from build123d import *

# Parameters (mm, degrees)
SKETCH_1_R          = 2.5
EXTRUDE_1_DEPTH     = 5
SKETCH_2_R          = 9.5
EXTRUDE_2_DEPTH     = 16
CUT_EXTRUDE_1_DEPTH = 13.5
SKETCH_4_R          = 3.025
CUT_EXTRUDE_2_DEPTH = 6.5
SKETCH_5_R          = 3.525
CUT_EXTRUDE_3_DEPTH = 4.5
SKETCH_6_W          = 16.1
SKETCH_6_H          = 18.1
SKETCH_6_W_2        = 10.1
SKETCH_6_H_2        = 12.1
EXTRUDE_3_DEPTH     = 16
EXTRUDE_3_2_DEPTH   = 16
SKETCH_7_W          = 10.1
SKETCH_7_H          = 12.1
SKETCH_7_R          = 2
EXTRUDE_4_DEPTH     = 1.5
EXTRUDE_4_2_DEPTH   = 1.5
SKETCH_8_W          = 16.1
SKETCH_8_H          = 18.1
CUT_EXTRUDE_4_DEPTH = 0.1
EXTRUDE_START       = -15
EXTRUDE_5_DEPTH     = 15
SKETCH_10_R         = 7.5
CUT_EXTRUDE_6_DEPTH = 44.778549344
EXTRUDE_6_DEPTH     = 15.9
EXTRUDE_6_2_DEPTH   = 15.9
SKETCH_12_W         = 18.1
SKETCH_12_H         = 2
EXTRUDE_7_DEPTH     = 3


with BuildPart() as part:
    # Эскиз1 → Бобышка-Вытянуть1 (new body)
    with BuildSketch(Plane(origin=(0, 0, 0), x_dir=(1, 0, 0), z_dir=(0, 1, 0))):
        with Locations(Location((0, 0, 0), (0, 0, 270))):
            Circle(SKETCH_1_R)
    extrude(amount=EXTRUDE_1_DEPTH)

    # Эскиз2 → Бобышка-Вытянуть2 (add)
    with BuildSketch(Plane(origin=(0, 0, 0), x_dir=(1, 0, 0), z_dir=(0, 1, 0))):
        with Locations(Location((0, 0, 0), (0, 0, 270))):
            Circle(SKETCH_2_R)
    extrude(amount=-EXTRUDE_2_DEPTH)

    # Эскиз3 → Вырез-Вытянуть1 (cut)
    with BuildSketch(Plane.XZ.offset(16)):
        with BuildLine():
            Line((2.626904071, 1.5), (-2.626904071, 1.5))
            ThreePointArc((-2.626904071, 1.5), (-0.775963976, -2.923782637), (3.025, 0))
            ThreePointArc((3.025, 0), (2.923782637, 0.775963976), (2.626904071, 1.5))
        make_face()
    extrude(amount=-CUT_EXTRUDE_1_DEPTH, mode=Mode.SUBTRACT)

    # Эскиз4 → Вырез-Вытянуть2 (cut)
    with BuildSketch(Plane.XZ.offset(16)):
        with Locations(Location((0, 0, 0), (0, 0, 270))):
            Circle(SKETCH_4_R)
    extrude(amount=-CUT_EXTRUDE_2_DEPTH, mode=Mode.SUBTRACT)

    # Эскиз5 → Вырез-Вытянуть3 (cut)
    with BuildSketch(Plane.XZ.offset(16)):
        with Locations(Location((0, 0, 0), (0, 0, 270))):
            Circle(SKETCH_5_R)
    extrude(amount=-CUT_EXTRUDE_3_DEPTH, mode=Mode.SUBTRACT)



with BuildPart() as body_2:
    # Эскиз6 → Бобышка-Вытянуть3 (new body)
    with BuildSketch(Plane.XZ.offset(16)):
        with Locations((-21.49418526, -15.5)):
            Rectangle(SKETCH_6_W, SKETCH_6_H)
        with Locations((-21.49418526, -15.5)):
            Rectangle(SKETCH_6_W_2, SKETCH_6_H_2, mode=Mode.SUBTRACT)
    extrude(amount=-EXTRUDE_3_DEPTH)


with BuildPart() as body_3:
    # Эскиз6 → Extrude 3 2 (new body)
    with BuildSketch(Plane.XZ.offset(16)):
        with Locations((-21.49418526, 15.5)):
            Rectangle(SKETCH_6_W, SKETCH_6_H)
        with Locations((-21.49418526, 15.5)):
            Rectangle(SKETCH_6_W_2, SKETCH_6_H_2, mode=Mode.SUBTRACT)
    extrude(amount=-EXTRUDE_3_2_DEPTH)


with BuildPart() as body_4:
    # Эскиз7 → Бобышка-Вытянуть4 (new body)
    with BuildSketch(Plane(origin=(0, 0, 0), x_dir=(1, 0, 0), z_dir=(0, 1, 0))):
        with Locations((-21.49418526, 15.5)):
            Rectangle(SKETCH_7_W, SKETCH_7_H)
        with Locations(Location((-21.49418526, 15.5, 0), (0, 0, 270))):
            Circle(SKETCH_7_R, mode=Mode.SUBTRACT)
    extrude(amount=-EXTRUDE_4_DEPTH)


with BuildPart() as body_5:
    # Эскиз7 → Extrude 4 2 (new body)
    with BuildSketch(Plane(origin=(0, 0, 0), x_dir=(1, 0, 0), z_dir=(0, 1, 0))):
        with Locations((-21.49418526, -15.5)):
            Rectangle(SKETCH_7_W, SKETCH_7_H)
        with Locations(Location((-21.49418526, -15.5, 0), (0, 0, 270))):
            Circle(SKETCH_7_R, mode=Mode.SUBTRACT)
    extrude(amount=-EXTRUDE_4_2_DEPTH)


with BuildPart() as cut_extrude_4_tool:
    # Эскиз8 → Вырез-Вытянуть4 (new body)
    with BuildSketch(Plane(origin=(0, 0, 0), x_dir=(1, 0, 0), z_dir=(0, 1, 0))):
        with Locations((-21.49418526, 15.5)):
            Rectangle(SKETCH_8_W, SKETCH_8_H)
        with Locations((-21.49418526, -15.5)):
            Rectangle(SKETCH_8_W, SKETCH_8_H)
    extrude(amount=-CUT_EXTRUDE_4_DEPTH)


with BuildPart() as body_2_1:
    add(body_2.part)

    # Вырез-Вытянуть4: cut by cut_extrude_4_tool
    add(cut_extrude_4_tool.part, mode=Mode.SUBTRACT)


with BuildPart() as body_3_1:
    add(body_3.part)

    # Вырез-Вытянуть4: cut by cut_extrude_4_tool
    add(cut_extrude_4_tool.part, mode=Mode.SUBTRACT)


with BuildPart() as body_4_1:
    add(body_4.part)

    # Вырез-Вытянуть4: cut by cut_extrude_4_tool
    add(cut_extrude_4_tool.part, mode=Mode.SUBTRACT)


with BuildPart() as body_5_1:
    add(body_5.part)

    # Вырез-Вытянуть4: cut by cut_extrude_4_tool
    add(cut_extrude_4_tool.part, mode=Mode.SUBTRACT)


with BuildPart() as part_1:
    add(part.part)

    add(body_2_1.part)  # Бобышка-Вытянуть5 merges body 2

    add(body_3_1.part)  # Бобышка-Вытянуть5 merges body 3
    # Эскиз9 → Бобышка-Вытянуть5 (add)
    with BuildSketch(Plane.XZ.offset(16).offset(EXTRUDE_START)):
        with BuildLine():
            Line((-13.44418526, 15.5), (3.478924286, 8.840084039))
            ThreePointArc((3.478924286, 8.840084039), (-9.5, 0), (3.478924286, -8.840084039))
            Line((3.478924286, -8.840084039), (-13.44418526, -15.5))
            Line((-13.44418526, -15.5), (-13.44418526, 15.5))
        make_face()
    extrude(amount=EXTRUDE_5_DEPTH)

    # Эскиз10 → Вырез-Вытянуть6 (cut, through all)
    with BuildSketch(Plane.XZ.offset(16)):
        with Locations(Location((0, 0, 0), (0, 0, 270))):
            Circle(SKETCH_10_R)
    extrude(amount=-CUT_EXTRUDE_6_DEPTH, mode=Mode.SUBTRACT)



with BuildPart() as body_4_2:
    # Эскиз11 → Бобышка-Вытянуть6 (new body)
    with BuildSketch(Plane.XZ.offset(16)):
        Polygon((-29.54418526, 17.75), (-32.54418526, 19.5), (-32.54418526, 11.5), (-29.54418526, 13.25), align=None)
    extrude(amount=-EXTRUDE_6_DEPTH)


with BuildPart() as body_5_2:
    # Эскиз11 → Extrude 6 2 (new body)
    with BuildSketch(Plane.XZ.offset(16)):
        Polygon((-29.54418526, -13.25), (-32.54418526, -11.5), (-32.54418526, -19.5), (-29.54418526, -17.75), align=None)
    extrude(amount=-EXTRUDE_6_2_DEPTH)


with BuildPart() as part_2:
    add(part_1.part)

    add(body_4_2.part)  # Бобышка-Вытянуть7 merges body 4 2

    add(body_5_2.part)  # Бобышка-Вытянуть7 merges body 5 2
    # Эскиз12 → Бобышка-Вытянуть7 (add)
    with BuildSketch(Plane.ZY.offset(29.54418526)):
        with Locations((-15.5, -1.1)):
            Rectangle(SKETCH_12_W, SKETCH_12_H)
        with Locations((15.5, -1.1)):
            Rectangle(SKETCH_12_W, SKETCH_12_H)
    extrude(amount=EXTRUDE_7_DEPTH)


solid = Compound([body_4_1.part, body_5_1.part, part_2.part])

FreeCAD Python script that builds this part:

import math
import FreeCAD as App
import Part
import Sketcher

V = App.Vector
Q = App.Units.Quantity

doc = App.newDocument("Part")
body = doc.addObject("PartDesign::Body", "Body")

# Sketch on XZ plane
sketch1 = body.newObject("Sketcher::SketchObject", "Sketch")
sketch1.AttachmentSupport = (doc.getObject("XZ_Plane"), [""])
sketch1.MapMode = "FlatFace"
sketch1.addGeometry(Part.Circle(V(0, 0, 0), V(0, 0, 1), 2.5), False)
sketch1.addConstraint([
    Sketcher.Constraint("Coincident", 0, 3, -1, 1),
    Sketcher.Constraint("Diameter", 0, Q("5 mm")),
])
pad1 = body.newObject("PartDesign::Pad", "Pad")
pad1.Profile = sketch1
pad1.Length = 5
pad1.Reversed = True

# Sketch on XZ plane
sketch2 = body.newObject("Sketcher::SketchObject", "Sketch001")
sketch2.AttachmentSupport = (doc.getObject("XZ_Plane"), [""])
sketch2.MapMode = "FlatFace"
sketch2.addGeometry(Part.Circle(V(0, 0, 0), V(0, 0, 1), 10), False)
sketch2.addConstraint([
    Sketcher.Constraint("Coincident", 0, 3, -1, 1),
    Sketcher.Constraint("Diameter", 0, Q("19 mm")),
])
pad2 = body.newObject("PartDesign::Pad", "Pad001")
pad2.Profile = sketch2
pad2.Length = 16

# Sketch on XZ plane
sketch3 = body.newObject("Sketcher::SketchObject", "Sketch002")
sketch3.AttachmentSupport = (doc.getObject("XZ_Plane"), [""])
sketch3.MapMode = "FlatFace"
sketch3.AttachmentOffset = App.Placement(V(0, 0, 16), App.Rotation())
sketch3.addGeometry([
    Part.LineSegment(V(2.6, 1.5, 0), V(-2.6, 1.5, 0)),
    Part.ArcOfCircle(Part.Circle(V(0, 0, 0), V(0, 0, 1), 3), math.radians(150), math.radians(360)),
    Part.ArcOfCircle(Part.Circle(V(0, 0, 0), V(0, 0, 1), 3), math.radians(0), math.radians(30)),
], False)
sketch3.addConstraint([
    Sketcher.Constraint("Coincident", 0, 2, 1, 1),
    Sketcher.Constraint("Tangent", 1, 2, 2, 1),
    Sketcher.Constraint("Coincident", 2, 2, 0, 1),
    Sketcher.Constraint("Horizontal", 0),
    Sketcher.Constraint("Coincident", 1, 3, -1, 1),
    Sketcher.Constraint("Equal", 1, 2),
    Sketcher.Constraint("PointOnObject", 1, 2, -1),
    Sketcher.Constraint("Radius", 1, Q("3.025 mm")),
    Sketcher.Constraint("DistanceY", -1, 1, 0, 2, Q("1.5 mm")),
])
pocket1 = body.newObject("PartDesign::Pocket", "Pocket")
pocket1.Profile = sketch3
pocket1.Length = 13.5

# Sketch on XZ plane
sketch4 = body.newObject("Sketcher::SketchObject", "Sketch003")
sketch4.AttachmentSupport = (doc.getObject("XZ_Plane"), [""])
sketch4.MapMode = "FlatFace"
sketch4.AttachmentOffset = App.Placement(V(0, 0, 16), App.Rotation())
sketch4.addGeometry(Part.Circle(V(0, 0, 0), V(0, 0, 1), 3), False)
sketch4.addConstraint([
    Sketcher.Constraint("Coincident", 0, 3, -1, 1),
    Sketcher.Constraint("Diameter", 0, Q("6.05 mm")),
])
pocket2 = body.newObject("PartDesign::Pocket", "Pocket001")
pocket2.Profile = sketch4
pocket2.Length = 6.5

# Sketch on XZ plane
sketch5 = body.newObject("Sketcher::SketchObject", "Sketch004")
sketch5.AttachmentSupport = (doc.getObject("XZ_Plane"), [""])
sketch5.MapMode = "FlatFace"
sketch5.AttachmentOffset = App.Placement(V(0, 0, 16), App.Rotation())
sketch5.addGeometry(Part.Circle(V(0, 0, 0), V(0, 0, 1), 3.5), False)
sketch5.addConstraint([
    Sketcher.Constraint("Coincident", 0, 3, -1, 1),
    Sketcher.Constraint("Diameter", 0, Q("7.05 mm")),
])
pocket3 = body.newObject("PartDesign::Pocket", "Pocket002")
pocket3.Profile = sketch5
pocket3.Length = 4.5
body2 = doc.addObject("PartDesign::Body", "Body001")

# Sketch on XZ plane
sketch6 = body2.newObject("Sketcher::SketchObject", "Sketch005")
sketch6.AttachmentSupport = (doc.getObject("XZ_Plane001"), [""])
sketch6.MapMode = "FlatFace"
sketch6.AttachmentOffset = App.Placement(V(0, 0, 16), App.Rotation())
sketch6.addGeometry([
    Part.LineSegment(V(-30, -6, 0), V(-30, -25, 0)),  # 0
    Part.LineSegment(V(-30, -25, 0), V(-13, -25, 0)),  # 1
    Part.LineSegment(V(-13, -25, 0), V(-13, -6, 0)),  # 2
    Part.LineSegment(V(-13, -6, 0), V(-30, -6, 0)),  # 3
    Part.LineSegment(V(-16, -22, 0), V(-27, -22, 0)),  # 4
    Part.LineSegment(V(-27, -22, 0), V(-27, -9, 0)),  # 5
    Part.LineSegment(V(-27, -9, 0), V(-16, -9, 0)),  # 6
    Part.LineSegment(V(-16, -9, 0), V(-16, -22, 0)),  # 7
], False)
sketch6.addConstraint([
    Sketcher.Constraint("Coincident", 0, 2, 1, 1),
    Sketcher.Constraint("Coincident", 1, 2, 2, 1),
    Sketcher.Constraint("Coincident", 2, 2, 3, 1),
    Sketcher.Constraint("Coincident", 3, 2, 0, 1),
    Sketcher.Constraint("Coincident", 4, 2, 5, 1),
    Sketcher.Constraint("Coincident", 5, 2, 6, 1),
    Sketcher.Constraint("Coincident", 6, 2, 7, 1),
    Sketcher.Constraint("Coincident", 7, 2, 4, 1),
    Sketcher.Constraint("Vertical", 0),
    Sketcher.Constraint("Horizontal", 1),
    Sketcher.Constraint("Vertical", 2),
    Sketcher.Constraint("Horizontal", 3),
    Sketcher.Constraint("Horizontal", 4),
    Sketcher.Constraint("Vertical", 5),
    Sketcher.Constraint("Horizontal", 6),
    Sketcher.Constraint("Vertical", 7),
    Sketcher.Constraint("DistanceX", 1, 1, 1, 2, Q("16.1 mm")),
    Sketcher.Constraint("DistanceX", 4, 2, 4, 1, Q("10.1 mm")),
    Sketcher.Constraint("DistanceY", 0, 2, 0, 1, Q("18.1 mm")),
    Sketcher.Constraint("DistanceY", 5, 1, 5, 2, Q("12.1 mm")),
    Sketcher.Constraint("DistanceX", 0, 2, 4, 2, Q("3 mm")),
    Sketcher.Constraint("DistanceY", 0, 2, 4, 2, Q("3 mm")),
    Sketcher.Constraint("DistanceY", 0, 2, -1, 1, Q("24.55 mm")),
    Sketcher.Constraint("DistanceX", 0, 2, -1, 1, Q("29.544185 mm")),
])
pad3 = body2.newObject("PartDesign::Pad", "Pad002")
pad3.Profile = sketch6
pad3.Length = 16
pad3.Reversed = True
body3 = doc.addObject("PartDesign::Body", "Body002")

# Sketch on XZ plane
sketch7 = body3.newObject("Sketcher::SketchObject", "Sketch006")
sketch7.AttachmentSupport = (doc.getObject("XZ_Plane002"), [""])
sketch7.MapMode = "FlatFace"
sketch7.AttachmentOffset = App.Placement(V(0, 0, 16), App.Rotation())
sketch7.addGeometry([
    Part.LineSegment(V(-30, 25, 0), V(-30, 6, 0)),  # 0
    Part.LineSegment(V(-30, 6, 0), V(-13, 6, 0)),  # 1
    Part.LineSegment(V(-13, 6, 0), V(-13, 25, 0)),  # 2
    Part.LineSegment(V(-13, 25, 0), V(-30, 25, 0)),  # 3
    Part.LineSegment(V(-16, 9, 0), V(-27, 9, 0)),  # 4
    Part.LineSegment(V(-27, 9, 0), V(-27, 22, 0)),  # 5
    Part.LineSegment(V(-27, 22, 0), V(-16, 22, 0)),  # 6
    Part.LineSegment(V(-16, 22, 0), V(-16, 9, 0)),  # 7
], False)
sketch7.addConstraint([
    Sketcher.Constraint("Coincident", 0, 2, 1, 1),
    Sketcher.Constraint("Coincident", 1, 2, 2, 1),
    Sketcher.Constraint("Coincident", 2, 2, 3, 1),
    Sketcher.Constraint("Coincident", 3, 2, 0, 1),
    Sketcher.Constraint("Coincident", 4, 2, 5, 1),
    Sketcher.Constraint("Coincident", 5, 2, 6, 1),
    Sketcher.Constraint("Coincident", 6, 2, 7, 1),
    Sketcher.Constraint("Coincident", 7, 2, 4, 1),
    Sketcher.Constraint("Vertical", 0),
    Sketcher.Constraint("Horizontal", 1),
    Sketcher.Constraint("Vertical", 2),
    Sketcher.Constraint("Horizontal", 3),
    Sketcher.Constraint("Horizontal", 4),
    Sketcher.Constraint("Vertical", 5),
    Sketcher.Constraint("Horizontal", 6),
    Sketcher.Constraint("Vertical", 7),
    Sketcher.Constraint("DistanceX", 1, 1, 1, 2, Q("16.1 mm")),
    Sketcher.Constraint("DistanceX", 4, 2, 4, 1, Q("10.1 mm")),
    Sketcher.Constraint("DistanceY", 0, 2, 0, 1, Q("18.1 mm")),
    Sketcher.Constraint("DistanceY", 5, 1, 5, 2, Q("12.1 mm")),
    Sketcher.Constraint("DistanceX", 0, 2, 4, 2, Q("3 mm")),
    Sketcher.Constraint("DistanceY", 0, 2, 4, 2, Q("3 mm")),
    Sketcher.Constraint("DistanceY", -1, 1, 0, 2, Q("6.45 mm")),
    Sketcher.Constraint("DistanceX", 0, 2, -1, 1, Q("29.544185 mm")),
])
pad4 = body3.newObject("PartDesign::Pad", "Pad003")
pad4.Profile = sketch7
pad4.Length = 16
pad4.Reversed = True
body4 = doc.addObject("PartDesign::Body", "Body003")

# Sketch on XZ plane
sketch8 = body4.newObject("Sketcher::SketchObject", "Sketch007")
sketch8.AttachmentSupport = (doc.getObject("XZ_Plane003"), [""])
sketch8.MapMode = "FlatFace"
sketch8.addGeometry([
    Part.LineSegment(V(-26.5, -21.6, 0), V(-26.5, -9.4, 0)),  # 0
    Part.LineSegment(V(-26.5, -9.4, 0), V(-16.4, -9.4, 0)),  # 1
    Part.LineSegment(V(-16.4, -9.4, 0), V(-16.4, -21.6, 0)),  # 2
    Part.LineSegment(V(-16.4, -21.6, 0), V(-26.5, -21.6, 0)),  # 3
    Part.Circle(V(-21.5, -15.5, 0), V(0, 0, 1), 2),  # 4
], False)
sketch8.addConstraint([
    Sketcher.Constraint("Coincident", 0, 2, 1, 1),
    Sketcher.Constraint("Coincident", 1, 2, 2, 1),
    Sketcher.Constraint("Coincident", 2, 2, 3, 1),
    Sketcher.Constraint("Coincident", 3, 2, 0, 1),
    Sketcher.Constraint("Vertical", 0),
    Sketcher.Constraint("Horizontal", 1),
    Sketcher.Constraint("Vertical", 2),
    Sketcher.Constraint("Horizontal", 3),
    Sketcher.Constraint("Diameter", 4, Q("4 mm")),
    Sketcher.Constraint("DistanceX", 1, 1, 1, 2, Q("10.1 mm")),
    Sketcher.Constraint("DistanceY", 0, 1, 0, 2, Q("12.1 mm")),
    Sketcher.Constraint("DistanceY", 4, 3, -1, 1, Q("15.5 mm")),
    Sketcher.Constraint("DistanceY", 0, 2, -1, 1, Q("9.45 mm")),
    Sketcher.Constraint("DistanceX", 0, 2, 4, 3, Q("5.05 mm")),
    Sketcher.Constraint("DistanceX", 4, 3, -1, 1, Q("21.494185 mm")),
])
pad5 = body4.newObject("PartDesign::Pad", "Pad004")
pad5.Profile = sketch8
pad5.Length = 1.5
body5 = doc.addObject("PartDesign::Body", "Body004")

# Sketch on XZ plane
sketch9 = body5.newObject("Sketcher::SketchObject", "Sketch008")
sketch9.AttachmentSupport = (doc.getObject("XZ_Plane004"), [""])
sketch9.MapMode = "FlatFace"
sketch9.addGeometry([
    Part.LineSegment(V(-26.5, 9.4, 0), V(-26.5, 21.6, 0)),  # 0
    Part.LineSegment(V(-26.5, 21.6, 0), V(-16.4, 21.6, 0)),  # 1
    Part.LineSegment(V(-16.4, 21.6, 0), V(-16.4, 9.4, 0)),  # 2
    Part.LineSegment(V(-16.4, 9.4, 0), V(-26.5, 9.4, 0)),  # 3
    Part.Circle(V(-21.5, 15.5, 0), V(0, 0, 1), 2),  # 4
], False)
sketch9.addConstraint([
    Sketcher.Constraint("Coincident", 0, 2, 1, 1),
    Sketcher.Constraint("Coincident", 1, 2, 2, 1),
    Sketcher.Constraint("Coincident", 2, 2, 3, 1),
    Sketcher.Constraint("Coincident", 3, 2, 0, 1),
    Sketcher.Constraint("Vertical", 0),
    Sketcher.Constraint("Horizontal", 1),
    Sketcher.Constraint("Vertical", 2),
    Sketcher.Constraint("Horizontal", 3),
    Sketcher.Constraint("Diameter", 4, Q("4 mm")),
    Sketcher.Constraint("DistanceX", 1, 1, 1, 2, Q("10.1 mm")),
    Sketcher.Constraint("DistanceY", 0, 1, 0, 2, Q("12.1 mm")),
    Sketcher.Constraint("DistanceY", -1, 1, 4, 3, Q("15.5 mm")),
    Sketcher.Constraint("DistanceY", -1, 1, 0, 2, Q("21.55 mm")),
    Sketcher.Constraint("DistanceX", 0, 2, 4, 3, Q("5.05 mm")),
    Sketcher.Constraint("DistanceX", 4, 3, -1, 1, Q("21.494185 mm")),
])
pad6 = body5.newObject("PartDesign::Pad", "Pad005")
pad6.Profile = sketch9
pad6.Length = 1.5
body6 = doc.addObject("PartDesign::Body", "Body005")
body6.AllowCompound = True

# Sketch on XZ plane
sketch10 = body6.newObject("Sketcher::SketchObject", "Sketch009")
sketch10.AttachmentSupport = (doc.getObject("XZ_Plane005"), [""])
sketch10.MapMode = "FlatFace"
sketch10.addGeometry([
    Part.LineSegment(V(-30, -25, 0), V(-30, -6, 0)),  # 0
    Part.LineSegment(V(-30, -6, 0), V(-13, -6, 0)),  # 1
    Part.LineSegment(V(-13, -6, 0), V(-13, -25, 0)),  # 2
    Part.LineSegment(V(-13, -25, 0), V(-30, -25, 0)),  # 3
    Part.LineSegment(V(-30, 6, 0), V(-30, 25, 0)),  # 4
    Part.LineSegment(V(-30, 25, 0), V(-13, 25, 0)),  # 5
    Part.LineSegment(V(-13, 25, 0), V(-13, 6, 0)),  # 6
    Part.LineSegment(V(-13, 6, 0), V(-30, 6, 0)),  # 7
], False)
sketch10.addConstraint([
    Sketcher.Constraint("Coincident", 0, 2, 1, 1),
    Sketcher.Constraint("Coincident", 1, 2, 2, 1),
    Sketcher.Constraint("Coincident", 2, 2, 3, 1),
    Sketcher.Constraint("Coincident", 3, 2, 0, 1),
    Sketcher.Constraint("Coincident", 4, 2, 5, 1),
    Sketcher.Constraint("Coincident", 5, 2, 6, 1),
    Sketcher.Constraint("Coincident", 6, 2, 7, 1),
    Sketcher.Constraint("Coincident", 7, 2, 4, 1),
    Sketcher.Constraint("Vertical", 0),
    Sketcher.Constraint("Horizontal", 1),
    Sketcher.Constraint("Vertical", 2),
    Sketcher.Constraint("Horizontal", 3),
    Sketcher.Constraint("Vertical", 4),
    Sketcher.Constraint("Horizontal", 5),
    Sketcher.Constraint("Vertical", 6),
    Sketcher.Constraint("Horizontal", 7),
    Sketcher.Constraint("Symmetric", 3, 2, 4, 2, -1),
    Sketcher.Constraint("Symmetric", 1, 2, 6, 2, -1),
    Sketcher.Constraint("DistanceX", 1, 1, 1, 2, Q("16.1 mm")),
    Sketcher.Constraint("DistanceY", 0, 1, 0, 2, Q("18.1 mm")),
    Sketcher.Constraint("DistanceY", 0, 2, 4, 2, Q("31 mm")),
    Sketcher.Constraint("DistanceX", 0, 2, -1, 1, Q("29.544185 mm")),
])
pad7 = body6.newObject("PartDesign::Pad", "Pad006")
pad7.Profile = sketch10
pad7.Length = 0.1
doc.recompute()

body7 = doc.addObject("PartDesign::Body", "Body006")
body7.BaseFeature = body6
boolean = body2.newObject("PartDesign::Boolean", "Boolean")
boolean.Type = "Cut"
boolean.addObjects([body7])
doc.recompute()

body8 = doc.addObject("PartDesign::Body", "Body007")
body8.BaseFeature = body6
boolean2 = body3.newObject("PartDesign::Boolean", "Boolean001")
boolean2.Type = "Cut"
boolean2.addObjects([body8])
doc.recompute()

body9 = doc.addObject("PartDesign::Body", "Body008")
body9.BaseFeature = body6
boolean3 = body4.newObject("PartDesign::Boolean", "Boolean002")
boolean3.Type = "Cut"
boolean3.addObjects([body9])
doc.recompute()

boolean4 = body5.newObject("PartDesign::Boolean", "Boolean003")
boolean4.Type = "Cut"
boolean4.addObjects([body6])
body.AllowCompound = True
doc.recompute()

boolean5 = body.newObject("PartDesign::Boolean", "Boolean004")
boolean5.Type = "Fuse"
boolean5.addObjects([body2])
doc.recompute()

boolean6 = body.newObject("PartDesign::Boolean", "Boolean005")
boolean6.Type = "Fuse"
boolean6.addObjects([body3])

# Sketch on XZ plane
sketch11 = body.newObject("Sketcher::SketchObject", "Sketch010")
sketch11.AttachmentSupport = (doc.getObject("XZ_Plane"), [""])
sketch11.MapMode = "FlatFace"
sketch11.AttachmentOffset = App.Placement(V(0, 0, 1), App.Rotation())
sketch11.addGeometry([
    Part.LineSegment(V(3, 9, 0), V(-13, 16, 0)),
    Part.LineSegment(V(-13, 16, 0), V(-13, -16, 0)),
    Part.LineSegment(V(-13, -16, 0), V(3, -9, 0)),
    Part.ArcOfCircle(Part.Circle(V(0, 0, 0), V(0, 0, 1), 10), math.radians(69), math.radians(291)),
], False)
sketch11.addConstraint([
    Sketcher.Constraint("Coincident", 0, 2, 1, 1),
    Sketcher.Constraint("Coincident", 1, 2, 2, 1),
    Sketcher.Constraint("Tangent", 2, 2, 3, 2),
    Sketcher.Constraint("Tangent", 3, 1, 0, 1),
    Sketcher.Constraint("Vertical", 1),
    Sketcher.Constraint("Coincident", 3, 3, -1, 1),
    Sketcher.Constraint("Vertical", 2, 2, 3, 1),
    Sketcher.Constraint("Radius", 3, Q("9.5 mm")),
    Sketcher.Constraint("DistanceY", 1, 2, 1, 1, Q("31 mm")),
    Sketcher.Constraint("DistanceX", 1, 2, 2, 2, Q("16.92311 mm")),
])
pad8 = body.newObject("PartDesign::Pad", "Pad007")
pad8.Profile = sketch11
pad8.Length = 15

# Sketch on XZ plane
sketch12 = body.newObject("Sketcher::SketchObject", "Sketch011")
sketch12.AttachmentSupport = (doc.getObject("XZ_Plane"), [""])
sketch12.MapMode = "FlatFace"
sketch12.AttachmentOffset = App.Placement(V(0, 0, 16), App.Rotation())
sketch12.addGeometry(Part.Circle(V(0, 0, 0), V(0, 0, 1), 8), False)
sketch12.addConstraint([
    Sketcher.Constraint("Coincident", 0, 3, -1, 1),
    Sketcher.Constraint("Diameter", 0, Q("15 mm")),
])
pocket4 = body.newObject("PartDesign::Pocket", "Pocket003")
pocket4.Profile = sketch12
pocket4.Type = "ThroughAll"
body10 = doc.addObject("PartDesign::Body", "Body009")

# Sketch on XZ plane
sketch13 = body10.newObject("Sketcher::SketchObject", "Sketch012")
sketch13.AttachmentSupport = (doc.getObject("XZ_Plane009"), [""])
sketch13.MapMode = "FlatFace"
sketch13.AttachmentOffset = App.Placement(V(0, 0, 16), App.Rotation())
sketch13.addGeometry([
    Part.LineSegment(V(-29.5, 17.8, 0), V(-32.5, 19.5, 0)),
    Part.LineSegment(V(-32.5, 19.5, 0), V(-32.5, 11.5, 0)),
    Part.LineSegment(V(-32.5, 11.5, 0), V(-29.5, 13.2, 0)),
    Part.LineSegment(V(-29.5, 13.2, 0), V(-29.5, 17.8, 0)),
], False)
sketch13.addConstraint([
    Sketcher.Constraint("Coincident", 0, 2, 1, 1),
    Sketcher.Constraint("Coincident", 1, 2, 2, 1),
    Sketcher.Constraint("Coincident", 2, 2, 3, 1),
    Sketcher.Constraint("Coincident", 3, 2, 0, 1),
    Sketcher.Constraint("Vertical", 1),
    Sketcher.Constraint("Vertical", 3),
    Sketcher.Constraint("Equal", 0, 2),
    Sketcher.Constraint("DistanceY", 1, 2, 1, 1, Q("8 mm")),
    Sketcher.Constraint("DistanceY", 3, 1, 3, 2, Q("4.5 mm")),
    Sketcher.Constraint("DistanceX", 1, 2, 2, 2, Q("3 mm")),
    Sketcher.Constraint("DistanceY", -1, 1, 0, 2, Q("19.5 mm")),
    Sketcher.Constraint("DistanceX", 0, 2, -1, 1, Q("32.544185 mm")),
])
pad9 = body10.newObject("PartDesign::Pad", "Pad008")
pad9.Profile = sketch13
pad9.Length = 15.9
pad9.Reversed = True
body11 = doc.addObject("PartDesign::Body", "Body010")

# Sketch on XZ plane
sketch14 = body11.newObject("Sketcher::SketchObject", "Sketch013")
sketch14.AttachmentSupport = (doc.getObject("XZ_Plane010"), [""])
sketch14.MapMode = "FlatFace"
sketch14.AttachmentOffset = App.Placement(V(0, 0, 16), App.Rotation())
sketch14.addGeometry([
    Part.LineSegment(V(-29.5, -13.2, 0), V(-32.5, -11.5, 0)),
    Part.LineSegment(V(-32.5, -11.5, 0), V(-32.5, -19.5, 0)),
    Part.LineSegment(V(-32.5, -19.5, 0), V(-29.5, -17.8, 0)),
    Part.LineSegment(V(-29.5, -17.8, 0), V(-29.5, -13.2, 0)),
], False)
sketch14.addConstraint([
    Sketcher.Constraint("Coincident", 0, 2, 1, 1),
    Sketcher.Constraint("Coincident", 1, 2, 2, 1),
    Sketcher.Constraint("Coincident", 2, 2, 3, 1),
    Sketcher.Constraint("Coincident", 3, 2, 0, 1),
    Sketcher.Constraint("Vertical", 1),
    Sketcher.Constraint("Vertical", 3),
    Sketcher.Constraint("Equal", 0, 2),
    Sketcher.Constraint("DistanceY", 1, 2, 1, 1, Q("8 mm")),
    Sketcher.Constraint("DistanceY", 3, 1, 3, 2, Q("4.5 mm")),
    Sketcher.Constraint("DistanceX", 1, 2, 2, 2, Q("3 mm")),
    Sketcher.Constraint("DistanceY", 0, 2, -1, 1, Q("11.5 mm")),
    Sketcher.Constraint("DistanceX", 0, 2, -1, 1, Q("32.544185 mm")),
])
pad10 = body11.newObject("PartDesign::Pad", "Pad009")
pad10.Profile = sketch14
pad10.Length = 15.9
pad10.Reversed = True
doc.recompute()

boolean7 = body.newObject("PartDesign::Boolean", "Boolean006")
boolean7.Type = "Fuse"
boolean7.addObjects([body10])
doc.recompute()

boolean8 = body.newObject("PartDesign::Boolean", "Boolean007")
boolean8.Type = "Fuse"
boolean8.addObjects([body11])

# Sketch on YZ plane
sketch15 = body.newObject("Sketcher::SketchObject", "Sketch014")
sketch15.AttachmentSupport = (doc.getObject("YZ_Plane"), [""])
sketch15.MapMode = "FlatFace"
sketch15.AttachmentOffset = App.Placement(V(0, 0, -29.544185), App.Rotation())
sketch15.addGeometry([
    Part.LineSegment(V(-0.1, -24.6, 0), V(-2.1, -24.6, 0)),  # 0
    Part.LineSegment(V(-2.1, -24.6, 0), V(-2.1, -6.5, 0)),  # 1
    Part.LineSegment(V(-2.1, -6.5, 0), V(-0.1, -6.5, 0)),  # 2
    Part.LineSegment(V(-0.1, -6.5, 0), V(-0.1, -24.6, 0)),  # 3
    Part.LineSegment(V(-0.1, 6.5, 0), V(-2.1, 6.5, 0)),  # 4
    Part.LineSegment(V(-2.1, 6.5, 0), V(-2.1, 24.6, 0)),  # 5
    Part.LineSegment(V(-2.1, 24.6, 0), V(-0.1, 24.6, 0)),  # 6
    Part.LineSegment(V(-0.1, 24.6, 0), V(-0.1, 6.5, 0)),  # 7
], False)
sketch15.addConstraint([
    Sketcher.Constraint("Coincident", 0, 2, 1, 1),
    Sketcher.Constraint("Coincident", 1, 2, 2, 1),
    Sketcher.Constraint("Coincident", 2, 2, 3, 1),
    Sketcher.Constraint("Coincident", 3, 2, 0, 1),
    Sketcher.Constraint("Coincident", 4, 2, 5, 1),
    Sketcher.Constraint("Coincident", 5, 2, 6, 1),
    Sketcher.Constraint("Coincident", 6, 2, 7, 1),
    Sketcher.Constraint("Coincident", 7, 2, 4, 1),
    Sketcher.Constraint("Horizontal", 0),
    Sketcher.Constraint("Vertical", 1),
    Sketcher.Constraint("Horizontal", 2),
    Sketcher.Constraint("Vertical", 3),
    Sketcher.Constraint("Horizontal", 4),
    Sketcher.Constraint("Vertical", 5),
    Sketcher.Constraint("Horizontal", 6),
    Sketcher.Constraint("Vertical", 7),
    Sketcher.Constraint("Symmetric", 1, 2, 4, 2, -1),
    Sketcher.Constraint("Symmetric", 3, 2, 6, 2, -1),
    Sketcher.Constraint("DistanceX", 0, 2, 0, 1, Q("2 mm")),
    Sketcher.Constraint("DistanceY", 1, 1, 1, 2, Q("18.1 mm")),
    Sketcher.Constraint("DistanceY", 0, 2, 4, 2, Q("31 mm")),
    Sketcher.Constraint("DistanceX", 0, 2, -1, 1, Q("2.1 mm")),
])
pad11 = body.newObject("PartDesign::Pad", "Pad010")
pad11.Profile = sketch15
pad11.Length = 3
pad11.Reversed = True

doc.recompute()
